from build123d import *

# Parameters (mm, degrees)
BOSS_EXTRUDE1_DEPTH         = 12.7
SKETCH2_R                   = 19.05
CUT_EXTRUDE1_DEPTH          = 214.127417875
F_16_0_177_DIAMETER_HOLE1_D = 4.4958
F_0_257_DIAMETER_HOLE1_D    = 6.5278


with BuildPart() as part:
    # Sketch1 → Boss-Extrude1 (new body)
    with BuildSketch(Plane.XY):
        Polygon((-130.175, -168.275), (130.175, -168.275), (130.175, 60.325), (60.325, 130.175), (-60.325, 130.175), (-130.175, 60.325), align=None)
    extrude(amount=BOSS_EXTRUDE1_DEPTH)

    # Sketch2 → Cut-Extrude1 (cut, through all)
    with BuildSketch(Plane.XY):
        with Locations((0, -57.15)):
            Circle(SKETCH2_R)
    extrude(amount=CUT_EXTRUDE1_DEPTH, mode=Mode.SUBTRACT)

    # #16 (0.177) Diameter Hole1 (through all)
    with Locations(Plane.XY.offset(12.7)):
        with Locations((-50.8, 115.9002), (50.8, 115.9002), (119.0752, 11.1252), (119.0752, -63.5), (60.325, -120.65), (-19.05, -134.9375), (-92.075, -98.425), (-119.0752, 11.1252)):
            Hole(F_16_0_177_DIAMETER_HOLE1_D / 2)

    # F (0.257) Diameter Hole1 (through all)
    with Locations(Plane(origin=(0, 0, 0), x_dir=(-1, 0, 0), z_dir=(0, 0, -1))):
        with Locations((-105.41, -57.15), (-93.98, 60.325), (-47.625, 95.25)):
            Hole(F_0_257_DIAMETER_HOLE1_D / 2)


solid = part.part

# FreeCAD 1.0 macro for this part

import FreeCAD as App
import Part
import Sketcher
Q = App.Units.Quantity


def add_polygon(sketch, points):
    """Adds a closed chain of lines whose ends are joined by coincident constraints."""
    first, n = sketch.GeometryCount, len(points)
    for a, b in zip(points, points[1:] + points[:1]):
        sketch.addGeometry(Part.LineSegment(App.Vector(*a, 0), App.Vector(*b, 0)), False)
    for i in range(n):
        sketch.addConstraint(Sketcher.Constraint("Coincident", first + i, 2, first + (i + 1) % n, 1))

doc = App.newDocument("Part")
params = doc.addObject("Spreadsheet::Sheet", "Params")
for row, (alias, value) in enumerate([
    ("sketch1_height", "9 in"),
    ("sketch1_width", "10.25 in"),
    ("sketch1_width2", "4.75 in"),
    ("pad1_length", "0.5 in"),
    ("sketch2_diameter", "1.5 in"),
    ("sketch3_diameter", "0.177 in"),
    ("hole_diameter", "0.177 in"),
    ("sketch4_diameter", "0.257 in"),
    ("hole2_diameter", "0.257 in"),
], start=1):
    params.set(f"A{row}", alias)
    params.set(f"B{row}", "=" + value)
    params.setAlias(f"B{row}", alias)

body = doc.addObject("PartDesign::Body", "Body")

# Sketch on XY plane
sketch1 = body.newObject("Sketcher::SketchObject", "Sketch")
sketch1.AttachmentSupport = (doc.getObject("XY_Plane"), [""])
sketch1.MapMode = "FlatFace"
add_polygon(sketch1, [(-130.175, -168.275), (130.175, -168.275), (130.175, 60.325), (60.325, 130.175), (-60.325, 130.175), (-130.175, 60.325)])  # lines 0-5
sketch1.addConstraint([
    Sketcher.Constraint("Horizontal", 0),
    Sketcher.Constraint("Vertical", 1),
    Sketcher.Constraint("Horizontal", 3),
    Sketcher.Constraint("Vertical", 5),
    Sketcher.Constraint("Symmetric", 1, 2, 4, 2, -2),
    Sketcher.Constraint("Perpendicular", 2, 4),
    Sketcher.Constraint("Equal", 2, 4),
    Sketcher.Constraint("DistanceY", 1, 1, 1, 2, Q("9 in")),
    Sketcher.Constraint("DistanceX", 0, 1, 0, 2, Q("10.25 in")),
    Sketcher.Constraint("DistanceX", 3, 2, 3, 1, Q("4.75 in")),
    Sketcher.Constraint("DistanceY", 0, 2, -1, 1, Q("6.625 in")),
])
sketch1.setExpression("Constraints[13]", "Params.sketch1_height")
sketch1.setExpression("Constraints[14]", "Params.sketch1_width")
sketch1.setExpression("Constraints[15]", "Params.sketch1_width2")
pad1 = body.newObject("PartDesign::Pad", "Pad")
pad1.Profile = sketch1
pad1.setExpression("Length", "Params.pad1_length")

# Sketch on XY plane
sketch2 = body.newObject("Sketcher::SketchObject", "Sketch001")
sketch2.AttachmentSupport = (doc.getObject("XY_Plane"), [""])
sketch2.MapMode = "FlatFace"
sketch2.addGeometry(Part.Circle(App.Vector(0, -57.15, 0), App.Vector(0, 0, 1), 19.05), False)
sketch2.addConstraint([
    Sketcher.Constraint("PointOnObject", 0, 3, -2),
    Sketcher.Constraint("Diameter", 0, Q("1.5 in")),
    Sketcher.Constraint("DistanceY", 0, 3, -1, 1, Q("2.25 in")),
])
sketch2.setExpression("Constraints[1]", "Params.sketch2_diameter")
pocket1 = body.newObject("PartDesign::Pocket", "Pocket")
pocket1.Profile = sketch2
pocket1.Type = "ThroughAll"
pocket1.Reversed = True

# Sketch on XY plane
sketch3 = body.newObject("Sketcher::SketchObject", "Sketch002")
sketch3.AttachmentSupport = (doc.getObject("XY_Plane"), [""])
sketch3.MapMode = "FlatFace"
sketch3.AttachmentOffset = App.Placement(App.Vector(0, 0, 0.5 * 25.4), App.Rotation())
sketch3.addGeometry([
    Part.Circle(App.Vector(-50.8, 115.9002, 0), App.Vector(0, 0, 1), 2.2479),  # 0
    Part.Circle(App.Vector(50.8, 115.9002, 0), App.Vector(0, 0, 1), 2.2479),  # 1
    Part.Circle(App.Vector(119.0752, 11.1252, 0), App.Vector(0, 0, 1), 2.2479),  # 2
    Part.Circle(App.Vector(119.0752, -63.5, 0), App.Vector(0, 0, 1), 2.2479),  # 3
    Part.Circle(App.Vector(60.325, -120.65, 0), App.Vector(0, 0, 1), 2.2479),  # 4
    Part.Circle(App.Vector(-19.05, -134.9375, 0), App.Vector(0, 0, 1), 2.2479),  # 5
    Part.Circle(App.Vector(-92.075, -98.425, 0), App.Vector(0, 0, 1), 2.2479),  # 6
    Part.Circle(App.Vector(-119.0752, 11.1252, 0), App.Vector(0, 0, 1), 2.2479),  # 7
], False)
sketch3.addConstraint([
    Sketcher.Constraint("Equal", 0, 1),
    Sketcher.Constraint("Equal", 1, 2),
    Sketcher.Constraint("Equal", 2, 3),
    Sketcher.Constraint("Equal", 3, 4),
    Sketcher.Constraint("Equal", 4, 5),
    Sketcher.Constraint("Equal", 5, 6),
    Sketcher.Constraint("Equal", 6, 7),
    Sketcher.Constraint("Symmetric", 0, 3, 1, 3, -2),
    Sketcher.Constraint("Symmetric", 2, 3, 7, 3, -2),
    Sketcher.Constraint("Vertical", 2, 3, 3, 3),
    Sketcher.Constraint("Diameter", 0, Q("0.177 in")),
    Sketcher.Constraint("DistanceX", 0, 3, -1, 1, Q("2 in")),
    Sketcher.Constraint("DistanceX", 6, 3, 4, 3, Q("6 in")),
    Sketcher.Constraint("DistanceY", 3, 3, -1, 1, Q("2.5 in")),
    Sketcher.Constraint("DistanceY", 4, 3, -1, 1, Q("4.75 in")),
    Sketcher.Constraint("DistanceX", 5, 3, -1, 1, Q("0.75 in")),
    Sketcher.Constraint("DistanceY", -1, 1, 0, 3, Q("4.563 in")),
    Sketcher.Constraint("DistanceX", -1, 1, 2, 3, Q("4.688 in")),
    Sketcher.Constraint("DistanceY", -1, 1, 2, 3, Q("0.438 in")),
    Sketcher.Constraint("DistanceX", -1, 1, 4, 3, Q("2.375 in")),
    Sketcher.Constraint("DistanceY", 5, 3, -1, 1, Q("5.3125 in")),
    Sketcher.Constraint("DistanceY", 6, 3, -1, 1, Q("3.875 in")),
])
sketch3.setExpression("Constraints[10]", "Params.sketch3_diameter")
doc.recompute()
hole = body.newObject("PartDesign::Hole", "Hole")
hole.Profile = sketch3
hole.ThreadType = "None"
hole.setExpression("Diameter", "Params.hole_diameter")
hole.DepthType = "ThroughAll"

# Sketch on XY plane
sketch4 = body.newObject("Sketcher::SketchObject", "Sketch003")
sketch4.AttachmentSupport = (doc.getObject("XY_Plane"), [""])
sketch4.MapMode = "FlatFace"
sketch4.addGeometry([
    Part.Circle(App.Vector(105.41, -57.15, 0), App.Vector(0, 0, 1), 3.2639),
    Part.Circle(App.Vector(93.98, 60.325, 0), App.Vector(0, 0, 1), 3.2639),
    Part.Circle(App.Vector(47.625, 95.25, 0), App.Vector(0, 0, 1), 3.2639),
], False)
sketch4.addConstraint([
    Sketcher.Constraint("Equal", 0, 1),
    Sketcher.Constraint("Equal", 1, 2),
    Sketcher.Constraint("Diameter", 0, Q("0.257 in")),
    Sketcher.Constraint("DistanceY", 0, 3, 2, 3, Q("6 in")),
    Sketcher.Constraint("DistanceX", -1, 1, 1, 3, Q("3.7 in")),
    Sketcher.Constraint("DistanceX", -1, 1, 0, 3, Q("4.15 in")),
    Sketcher.Constraint("DistanceY", 0, 3, -1, 1, Q("2.25 in")),
    Sketcher.Constraint("DistanceY", -1, 1, 1, 3, Q("2.375 in")),
    Sketcher.Constraint("DistanceX", -1, 1, 2, 3, Q("1.875 in")),
])
sketch4.setExpression("Constraints[2]", "Params.sketch4_diameter")
doc.recompute()
hole2 = body.newObject("PartDesign::Hole", "Hole001")
hole2.Profile = sketch4
hole2.ThreadType = "None"
hole2.setExpression("Diameter", "Params.hole2_diameter")
hole2.DepthType = "ThroughAll"
hole2.Reversed = True

doc.recompute()
